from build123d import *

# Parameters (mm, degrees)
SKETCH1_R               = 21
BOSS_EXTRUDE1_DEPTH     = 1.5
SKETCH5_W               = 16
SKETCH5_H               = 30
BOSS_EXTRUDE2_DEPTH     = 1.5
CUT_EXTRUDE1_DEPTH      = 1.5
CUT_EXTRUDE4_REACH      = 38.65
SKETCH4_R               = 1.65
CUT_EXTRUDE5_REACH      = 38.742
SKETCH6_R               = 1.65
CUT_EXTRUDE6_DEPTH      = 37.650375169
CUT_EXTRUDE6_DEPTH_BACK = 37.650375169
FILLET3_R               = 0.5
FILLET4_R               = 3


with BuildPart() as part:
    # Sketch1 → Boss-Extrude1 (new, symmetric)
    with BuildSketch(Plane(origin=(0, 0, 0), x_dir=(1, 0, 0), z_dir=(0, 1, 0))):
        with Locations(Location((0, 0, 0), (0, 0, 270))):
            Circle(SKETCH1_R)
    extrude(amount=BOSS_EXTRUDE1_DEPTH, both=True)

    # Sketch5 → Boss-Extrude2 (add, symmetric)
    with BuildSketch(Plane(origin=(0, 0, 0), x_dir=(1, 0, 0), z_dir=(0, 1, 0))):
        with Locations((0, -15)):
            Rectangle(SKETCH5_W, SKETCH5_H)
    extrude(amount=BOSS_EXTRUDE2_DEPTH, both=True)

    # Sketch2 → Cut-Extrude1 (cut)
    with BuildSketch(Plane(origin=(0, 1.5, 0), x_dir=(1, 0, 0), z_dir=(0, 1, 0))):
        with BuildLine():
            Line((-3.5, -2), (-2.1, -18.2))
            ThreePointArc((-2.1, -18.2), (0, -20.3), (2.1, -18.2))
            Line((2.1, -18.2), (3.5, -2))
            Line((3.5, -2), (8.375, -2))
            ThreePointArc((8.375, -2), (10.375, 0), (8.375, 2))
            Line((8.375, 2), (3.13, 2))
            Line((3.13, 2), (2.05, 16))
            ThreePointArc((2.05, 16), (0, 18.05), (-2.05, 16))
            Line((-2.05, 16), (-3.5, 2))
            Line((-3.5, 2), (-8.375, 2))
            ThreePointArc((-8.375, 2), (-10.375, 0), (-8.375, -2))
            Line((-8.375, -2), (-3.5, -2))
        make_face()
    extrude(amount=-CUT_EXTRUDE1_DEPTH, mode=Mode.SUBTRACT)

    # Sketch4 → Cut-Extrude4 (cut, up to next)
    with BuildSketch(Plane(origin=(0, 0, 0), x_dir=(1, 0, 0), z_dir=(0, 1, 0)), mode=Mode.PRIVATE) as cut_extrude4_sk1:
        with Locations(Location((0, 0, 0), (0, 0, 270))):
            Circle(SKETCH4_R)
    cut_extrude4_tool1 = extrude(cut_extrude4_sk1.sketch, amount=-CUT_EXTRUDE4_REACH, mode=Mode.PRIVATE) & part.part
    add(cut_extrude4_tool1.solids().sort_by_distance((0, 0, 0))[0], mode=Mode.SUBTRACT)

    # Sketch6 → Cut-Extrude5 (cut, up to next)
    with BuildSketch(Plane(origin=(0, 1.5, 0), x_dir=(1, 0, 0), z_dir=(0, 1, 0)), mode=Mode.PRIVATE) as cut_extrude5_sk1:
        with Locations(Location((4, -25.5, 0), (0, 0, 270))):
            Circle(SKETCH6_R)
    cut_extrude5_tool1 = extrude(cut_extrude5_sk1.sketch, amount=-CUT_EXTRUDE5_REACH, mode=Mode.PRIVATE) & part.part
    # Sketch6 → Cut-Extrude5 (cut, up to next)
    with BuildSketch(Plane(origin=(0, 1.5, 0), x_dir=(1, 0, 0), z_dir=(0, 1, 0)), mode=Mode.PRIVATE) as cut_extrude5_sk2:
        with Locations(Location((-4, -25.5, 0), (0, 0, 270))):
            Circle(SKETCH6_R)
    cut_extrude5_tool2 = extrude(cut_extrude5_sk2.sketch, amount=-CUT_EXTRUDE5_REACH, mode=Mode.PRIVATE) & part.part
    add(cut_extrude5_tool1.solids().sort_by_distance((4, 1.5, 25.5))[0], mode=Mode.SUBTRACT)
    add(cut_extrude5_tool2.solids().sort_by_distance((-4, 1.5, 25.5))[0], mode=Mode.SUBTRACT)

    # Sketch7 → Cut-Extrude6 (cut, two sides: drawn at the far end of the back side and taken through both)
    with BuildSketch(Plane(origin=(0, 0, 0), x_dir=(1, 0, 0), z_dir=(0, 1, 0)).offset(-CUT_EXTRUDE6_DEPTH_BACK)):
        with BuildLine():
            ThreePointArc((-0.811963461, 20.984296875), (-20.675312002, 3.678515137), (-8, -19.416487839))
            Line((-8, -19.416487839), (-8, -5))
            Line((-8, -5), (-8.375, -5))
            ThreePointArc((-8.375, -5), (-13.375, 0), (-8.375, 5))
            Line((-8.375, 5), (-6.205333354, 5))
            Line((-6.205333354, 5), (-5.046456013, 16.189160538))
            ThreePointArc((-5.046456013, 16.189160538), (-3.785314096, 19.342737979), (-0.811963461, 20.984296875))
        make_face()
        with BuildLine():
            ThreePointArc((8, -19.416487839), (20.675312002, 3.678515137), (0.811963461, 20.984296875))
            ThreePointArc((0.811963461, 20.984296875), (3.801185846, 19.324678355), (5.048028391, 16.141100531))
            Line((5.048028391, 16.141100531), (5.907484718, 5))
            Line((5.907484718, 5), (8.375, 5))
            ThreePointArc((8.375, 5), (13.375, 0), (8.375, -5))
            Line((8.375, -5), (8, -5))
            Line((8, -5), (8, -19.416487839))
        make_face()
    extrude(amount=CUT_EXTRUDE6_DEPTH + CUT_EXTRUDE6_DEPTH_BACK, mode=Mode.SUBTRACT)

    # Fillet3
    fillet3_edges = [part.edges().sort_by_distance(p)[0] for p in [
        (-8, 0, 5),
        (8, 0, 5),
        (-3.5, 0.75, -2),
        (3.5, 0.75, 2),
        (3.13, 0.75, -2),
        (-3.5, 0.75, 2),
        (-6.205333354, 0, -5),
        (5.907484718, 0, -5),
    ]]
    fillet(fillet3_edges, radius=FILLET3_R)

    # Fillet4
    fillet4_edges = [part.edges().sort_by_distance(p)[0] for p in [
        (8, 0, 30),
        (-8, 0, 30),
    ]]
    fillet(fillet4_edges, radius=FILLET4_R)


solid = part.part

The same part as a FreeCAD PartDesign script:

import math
import FreeCAD as App
import Part
import Sketcher


def edges_at(feature, points):
    """Names of the edges that pass closest to the given points."""
    edges = feature.Shape.Edges
    near = lambda p: min(range(len(edges)), key=lambda i: edges[i].distToShape(Part.Vertex(*p))[0])
    return sorted({f"Edge{near(p) + 1}" for p in points})

doc = App.newDocument("Part")
body = doc.addObject("PartDesign::Body", "Body")

sketch1 = body.newObject("Sketcher::SketchObject", "Sketch")
sketch1.AttachmentSupport = (doc.getObject("XZ_Plane"), [""])
sketch1.MapMode = "FlatFace"
sketch1.addGeometry(Part.Circle(App.Vector(0, 0, 0), App.Vector(0, 0, 1), 21), False)
sketch1.addConstraint([
    Sketcher.Constraint("Coincident", 0, 3, -1, 1),
    Sketcher.Constraint("Diameter", 0, 42.0),
])
pad1 = body.newObject("PartDesign::Pad", "Pad")
pad1.Profile = sketch1
pad1.Length = 3
pad1.Midplane = True

sketch2 = body.newObject("Sketcher::SketchObject", "Sketch001")
sketch2.AttachmentSupport = (doc.getObject("XZ_Plane"), [""])
sketch2.MapMode = "FlatFace"
sketch2.addGeometry([
    Part.LineSegment(App.Vector(-8, 0, 0), App.Vector(-8, 30, 0)),
    Part.LineSegment(App.Vector(-8, 30, 0), App.Vector(8, 30, 0)),
    Part.LineSegment(App.Vector(8, 30, 0), App.Vector(8, 0, 0)),
    Part.LineSegment(App.Vector(8, 0, 0), App.Vector(-8, 0, 0)),
], False)
sketch2.addConstraint([
    Sketcher.Constraint("Coincident", 0, 2, 1, 1),
    Sketcher.Constraint("Coincident", 1, 2, 2, 1),
    Sketcher.Constraint("Coincident", 2, 2, 3, 1),
    Sketcher.Constraint("Coincident", 3, 2, 0, 1),
    Sketcher.Constraint("Vertical", 0),
    Sketcher.Constraint("Horizontal", 1),
    Sketcher.Constraint("Vertical", 2),
    Sketcher.Constraint("Horizontal", 3),
    Sketcher.Constraint("Symmetric", 2, 2, 3, 2, -1, 1),
    Sketcher.Constraint("DistanceX", 1, 1, 1, 2, 16.0),
    Sketcher.Constraint("DistanceY", 0, 1, 0, 2, 30.0),
])
pad2 = body.newObject("PartDesign::Pad", "Pad001")
pad2.Profile = sketch2
pad2.Length = 3
pad2.Midplane = True

sketch3 = body.newObject("Sketcher::SketchObject", "Sketch002")
sketch3.AttachmentSupport = (doc.getObject("XZ_Plane"), [""])
sketch3.MapMode = "FlatFace"
sketch3.AttachmentOffset = App.Placement(App.Vector(0, 0, -1.5), App.Rotation())
sketch3.addGeometry([
    Part.LineSegment(App.Vector(-3.5, 2, 0), App.Vector(-2.1, 18.2, 0)),
    Part.ArcOfCircle(Part.Circle(App.Vector(0, 18.2, 0), App.Vector(0, 0, 1), 2.1), math.radians(0), math.radians(180)),
    Part.LineSegment(App.Vector(2.1, 18.2, 0), App.Vector(3.5, 2, 0)),
    Part.LineSegment(App.Vector(3.5, 2, 0), App.Vector(8.4, 2, 0)),
    Part.ArcOfCircle(Part.Circle(App.Vector(8.4, 0, 0), App.Vector(0, 0, 1), 2), math.radians(-90), math.radians(90)),
    Part.LineSegment(App.Vector(8.4, -2, 0), App.Vector(3.1, -2, 0)),
    Part.LineSegment(App.Vector(3.1, -2, 0), App.Vector(2, -16, 0)),
    Part.ArcOfCircle(Part.Circle(App.Vector(0, -16, 0), App.Vector(0, 0, 1), 2), math.radians(180), math.radians(360)),
    Part.LineSegment(App.Vector(-2, -16, 0), App.Vector(-3.5, -2, 0)),
    Part.LineSegment(App.Vector(-3.5, -2, 0), App.Vector(-8.4, -2, 0)),
    Part.ArcOfCircle(Part.Circle(App.Vector(-8.4, 0, 0), App.Vector(0, 0, 1), 2), math.radians(90), math.radians(270)),
    Part.LineSegment(App.Vector(-8.4, 2, 0), App.Vector(-3.5, 2, 0)),
], False)
sketch3.addConstraint([
    Sketcher.Constraint("Coincident", 0, 2, 1, 2),
    Sketcher.Constraint("Coincident", 1, 1, 2, 1),
    Sketcher.Constraint("Coincident", 2, 2, 3, 1),
    Sketcher.Constraint("Tangent", 3, 2, 4, 2),
    Sketcher.Constraint("Tangent", 4, 1, 5, 1),
    Sketcher.Constraint("Coincident", 5, 2, 6, 1),
    Sketcher.Constraint("Coincident", 6, 2, 7, 2),
    Sketcher.Constraint("Coincident", 7, 1, 8, 1),
    Sketcher.Constraint("Coincident", 8, 2, 9, 1),
    Sketcher.Constraint("Tangent", 9, 2, 10, 2),
    Sketcher.Constraint("Tangent", 10, 1, 11, 1),
    Sketcher.Constraint("Coincident", 11, 2, 0, 1),
    Sketcher.Constraint("Horizontal", 3),
    Sketcher.Constraint("Horizontal", 5),
    Sketcher.Constraint("Horizontal", 9),
    Sketcher.Constraint("Horizontal", 11),
    Sketcher.Constraint("Equal", 4, 10),
    Sketcher.Constraint("Symmetric", 4, 3, 10, 3, -1, 1),
    Sketcher.Constraint("Symmetric", 0, 2, 1, 1, -2),
    Sketcher.Constraint("Symmetric", 6, 2, 7, 1, -2),
    Sketcher.Constraint("Symmetric", 2, 2, 11, 2, -2),
    Sketcher.Constraint("Horizontal", 1, 3, 0, 2),
    Sketcher.Constraint("Horizontal", 7, 3, 6, 2),
    Sketcher.Constraint("Vertical", 8, 2, 11, 2),
    Sketcher.Constraint("Radius", 4, 2.0),
    Sketcher.Constraint("Radius", 1, 2.1),
    Sketcher.Constraint("Radius", 7, 2.05),
    Sketcher.Constraint("DistanceY", 7, 3, -1, 1, 16.0),
    Sketcher.Constraint("DistanceX", 8, 2, 2, 2, 7.0),
    Sketcher.Constraint("DistanceY", -1, 1, 1, 3, 18.2),
    Sketcher.Constraint("DistanceX", 3, 1, 3, 2, 4.875),
    Sketcher.Constraint("DistanceX", 5, 2, 5, 1, 5.245),
])
pocket1 = body.newObject("PartDesign::Pocket", "Pocket")
pocket1.Profile = sketch3
pocket1.Length = 1.5
pocket1.Reversed = True

sketch4 = body.newObject("Sketcher::SketchObject", "Sketch003")
sketch4.AttachmentSupport = (doc.getObject("XZ_Plane"), [""])
sketch4.MapMode = "FlatFace"
sketch4.addGeometry(Part.Circle(App.Vector(0, 0, 0), App.Vector(0, 0, 1), 1.6), False)
sketch4.addConstraint([
    Sketcher.Constraint("Coincident", 0, 3, -1, 1),
    Sketcher.Constraint("Diameter", 0, 3.3),
])
pocket2 = body.newObject("PartDesign::Pocket", "Pocket001")
pocket2.Profile = sketch4
pocket2.Type = "UpToFirst"
pocket2.Reversed = True

sketch5 = body.newObject("Sketcher::SketchObject", "Sketch004")
sketch5.AttachmentSupport = (doc.getObject("XZ_Plane"), [""])
sketch5.MapMode = "FlatFace"
sketch5.AttachmentOffset = App.Placement(App.Vector(0, 0, -1.5), App.Rotation())
sketch5.addGeometry(Part.Circle(App.Vector(4, 25.5, 0), App.Vector(0, 0, 1), 1.6), False)
sketch5.addConstraint([
    Sketcher.Constraint("Diameter", 0, 3.3),
    Sketcher.Constraint("DistanceX", -1, 1, 0, 3, 4.0),
    Sketcher.Constraint("DistanceY", -1, 1, 0, 3, 25.5),
])
pocket3 = body.newObject("PartDesign::Pocket", "Pocket002")
pocket3.Profile = sketch5
pocket3.Type = "UpToFirst"
pocket3.Reversed = True

sketch6 = body.newObject("Sketcher::SketchObject", "Sketch005")
sketch6.AttachmentSupport = (doc.getObject("XZ_Plane"), [""])
sketch6.MapMode = "FlatFace"
sketch6.AttachmentOffset = App.Placement(App.Vector(0, 0, -1.5), App.Rotation())
sketch6.addGeometry(Part.Circle(App.Vector(-4, 25.5, 0), App.Vector(0, 0, 1), 1.6), False)
sketch6.addConstraint([
    Sketcher.Constraint("Diameter", 0, 3.3),
    Sketcher.Constraint("DistanceX", 0, 3, -1, 1, 4.0),
    Sketcher.Constraint("DistanceY", -1, 1, 0, 3, 25.5),
])
pocket4 = body.newObject("PartDesign::Pocket", "Pocket003")
pocket4.Profile = sketch6
pocket4.Type = "UpToFirst"
pocket4.Reversed = True

sketch7 = body.newObject("Sketcher::SketchObject", "Sketch006")
sketch7.AttachmentSupport = (doc.getObject("XZ_Plane"), [""])
sketch7.MapMode = "FlatFace"
sketch7.addGeometry([
    Part.ArcOfCircle(Part.Circle(App.Vector(0, 0, 0), App.Vector(0, 0, 1), 21), math.radians(112), math.radians(268)),
    Part.LineSegment(App.Vector(-8, 19.42, 0), App.Vector(-8, 5, 0)),
    Part.LineSegment(App.Vector(-8, 5, 0), App.Vector(-8.38, 5, 0)),
    Part.ArcOfCircle(Part.Circle(App.Vector(-8.38, 0, 0), App.Vector(0, 0, 1), 5), math.radians(90), math.radians(270)),
    Part.LineSegment(App.Vector(-8.38, -5, 0), App.Vector(-6.21, -5, 0)),
    Part.LineSegment(App.Vector(-6.21, -5, 0), App.Vector(-5.05, -16.19, 0)),
    Part.ArcOfCircle(Part.Circle(App.Vector(0, -16, 0), App.Vector(0, 0, 1), 5.05), math.radians(-178), math.radians(-99)),
    Part.ArcOfCircle(Part.Circle(App.Vector(0, 0, 0), App.Vector(0, 0, 1), 21), math.radians(-88), math.radians(68)),
    Part.ArcOfCircle(Part.Circle(App.Vector(0, -16, 0), App.Vector(0, 0, 1), 5.05), math.radians(-81), math.radians(-2)),
    Part.LineSegment(App.Vector(5.05, -16.14, 0), App.Vector(5.91, -5, 0)),
    Part.LineSegment(App.Vector(5.91, -5, 0), App.Vector(8.38, -5, 0)),
    Part.ArcOfCircle(Part.Circle(App.Vector(8.38, 0, 0), App.Vector(0, 0, 1), 5), math.radians(-90), math.radians(90)),
    Part.LineSegment(App.Vector(8.38, 5, 0), App.Vector(8, 5, 0)),
    Part.LineSegment(App.Vector(8, 5, 0), App.Vector(8, 19.42, 0)),
], False)
sketch7.addConstraint([
    Sketcher.Constraint("Coincident", 0, 1, 1, 1),
    Sketcher.Constraint("Coincident", 1, 2, 2, 1),
    Sketcher.Constraint("Tangent", 2, 2, 3, 1),
    Sketcher.Constraint("Tangent", 3, 2, 4, 1),
    Sketcher.Constraint("Coincident", 4, 2, 5, 1),
    Sketcher.Constraint("Coincident", 5, 2, 6, 1),
    Sketcher.Constraint("Coincident", 6, 2, 0, 2),
    Sketcher.Constraint("Coincident", 7, 1, 8, 1),
    Sketcher.Constraint("Coincident", 8, 2, 9, 1),
    Sketcher.Constraint("Coincident", 9, 2, 10, 1),
    Sketcher.Constraint("Tangent", 10, 2, 11, 1),
    Sketcher.Constraint("Tangent", 11, 2, 12, 1),
    Sketcher.Constraint("Coincident", 12, 2, 13, 1),
    Sketcher.Constraint("Coincident", 13, 2, 7, 2),
    Sketcher.Constraint("Vertical", 1),
    Sketcher.Constraint("Horizontal", 2),
    Sketcher.Constraint("Horizontal", 4),
    Sketcher.Constraint("Horizontal", 10),
    Sketcher.Constraint("Horizontal", 12),
    Sketcher.Constraint("Vertical", 13),
    Sketcher.Constraint("Coincident", 0, 3, -1, 1),
    Sketcher.Constraint("Coincident", 7, 3, -1, 1),
    Sketcher.Constraint("Coincident", 8, 3, 6, 3),
    Sketcher.Constraint("Equal", 0, 7),
    Sketcher.Constraint("Equal", 6, 8),
    Sketcher.Constraint("Equal", 3, 11),
    Sketcher.Constraint("Symmetric", 3, 3, 11, 3, -1, 1),
    Sketcher.Constraint("Symmetric", 1, 2, 12, 2, -2),
    Sketcher.Constraint("PointOnObject", 6, 3, -2),
    Sketcher.Constraint("Radius", 0, 21.0),
    Sketcher.Constraint("Radius", 3, 5.0),
    Sketcher.Constraint("Radius", 6, 5.05),
    Sketcher.Constraint("DistanceY", 6, 3, -1, 1, 16.0),
    Sketcher.Constraint("DistanceX", 0, 1, -1, 1, 8.0),
    Sketcher.Constraint("DistanceX", 2, 2, 2, 1, 0.375),
    Sketcher.Constraint("Distance", 9, 11.174202),
    Sketcher.Constraint("DistanceY", 8, 2, -1, 1, 16.141101),
    Sketcher.Constraint("DistanceX", 4, 1, 4, 2, 2.169667),
    Sketcher.Constraint("DistanceY", 5, 2, -1, 1, 16.189161),
])
pocket5 = body.newObject("PartDesign::Pocket", "Pocket004")
pocket5.Profile = sketch7
pocket5.Type = "ThroughAll"
pocket5.Midplane = True
doc.recompute()

fillet = body.newObject("PartDesign::Fillet", "Fillet")
fillet.Base = (pocket5, edges_at(pocket5, [
    (-8, 0, 5),
    (8, 0, 5),
    (-3.5, 0.75, -2),
    (3.5, 0.75, 2),
    (3.13, 0.75, -2),
    (-3.5, 0.75, 2),
    (-6.205, 0, -5),
    (5.907, 0, -5),
]))
fillet.Radius = 0.5
doc.recompute()

fillet2 = body.newObject("PartDesign::Fillet", "Fillet001")
fillet2.Base = (fillet, edges_at(fillet, [(8, 0, 30), (-8, 0, 30)]))
fillet2.Radius = 3

doc.recompute()
